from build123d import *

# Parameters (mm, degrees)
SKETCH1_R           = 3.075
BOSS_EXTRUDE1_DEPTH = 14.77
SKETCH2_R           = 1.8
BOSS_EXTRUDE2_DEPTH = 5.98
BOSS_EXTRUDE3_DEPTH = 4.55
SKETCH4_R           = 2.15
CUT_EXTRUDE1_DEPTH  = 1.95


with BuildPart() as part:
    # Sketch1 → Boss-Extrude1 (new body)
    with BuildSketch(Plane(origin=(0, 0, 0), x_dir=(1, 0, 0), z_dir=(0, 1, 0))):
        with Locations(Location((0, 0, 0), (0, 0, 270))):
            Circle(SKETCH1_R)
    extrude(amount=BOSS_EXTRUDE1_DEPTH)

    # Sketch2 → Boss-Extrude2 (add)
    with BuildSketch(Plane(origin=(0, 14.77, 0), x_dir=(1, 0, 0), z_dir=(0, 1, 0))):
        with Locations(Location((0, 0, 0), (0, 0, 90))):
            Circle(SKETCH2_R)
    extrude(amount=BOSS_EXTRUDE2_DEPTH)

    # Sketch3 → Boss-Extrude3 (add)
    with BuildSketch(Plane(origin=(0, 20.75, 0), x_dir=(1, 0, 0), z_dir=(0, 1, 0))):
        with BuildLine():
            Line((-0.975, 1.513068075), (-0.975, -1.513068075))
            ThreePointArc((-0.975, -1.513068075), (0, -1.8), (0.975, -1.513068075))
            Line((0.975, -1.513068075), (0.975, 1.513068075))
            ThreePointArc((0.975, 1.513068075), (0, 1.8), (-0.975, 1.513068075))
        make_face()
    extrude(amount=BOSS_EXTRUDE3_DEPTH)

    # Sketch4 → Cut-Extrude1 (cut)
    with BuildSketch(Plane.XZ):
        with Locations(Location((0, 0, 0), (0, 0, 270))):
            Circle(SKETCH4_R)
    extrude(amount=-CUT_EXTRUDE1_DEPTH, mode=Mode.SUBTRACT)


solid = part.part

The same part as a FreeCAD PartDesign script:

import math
import FreeCAD as App
import Part
import Sketcher

doc = App.newDocument("Part")
body = doc.addObject("PartDesign::Body", "Body")

sketch1 = doc.addObject("Sketcher::SketchObject", "Sketch")
body.addObject(sketch1)
sketch1.AttachmentSupport = (doc.XZ_Plane, [""])
sketch1.MapMode = "FlatFace"
sketch1.addGeometry(Part.Circle(App.Vector(0, 0, 0), App.Vector(0, 0, 1), 3.1), False)
sketch1.addConstraint([
    Sketcher.Constraint("Coincident", 0, 3, -1, 1),
    Sketcher.Constraint("Diameter", 0, 6.15),
])
pad1 = doc.addObject("PartDesign::Pad", "Pad")
body.addObject(pad1)
pad1.Profile = sketch1
pad1.Length = 14.77
pad1.Reversed = True

sketch2 = doc.addObject("Sketcher::SketchObject", "Sketch001")
body.addObject(sketch2)
sketch2.AttachmentSupport = (doc.XZ_Plane, [""])
sketch2.MapMode = "FlatFace"
sketch2.AttachmentOffset = App.Placement(App.Vector(0, 0, -14.77), App.Rotation())
sketch2.addGeometry(Part.Circle(App.Vector(0, 0, 0), App.Vector(0, 0, 1), 1.8), False)
sketch2.addConstraint([
    Sketcher.Constraint("Coincident", 0, 3, -1, 1),
    Sketcher.Constraint("Diameter", 0, 3.6),
])
pad2 = doc.addObject("PartDesign::Pad", "Pad001")
body.addObject(pad2)
pad2.Profile = sketch2
pad2.Length = 5.98
pad2.Reversed = True

sketch3 = doc.addObject("Sketcher::SketchObject", "Sketch002")
body.addObject(sketch3)
sketch3.AttachmentSupport = (doc.XZ_Plane, [""])
sketch3.MapMode = "FlatFace"
sketch3.AttachmentOffset = App.Placement(App.Vector(0, 0, -20.75), App.Rotation())
sketch3.addGeometry([
    Part.LineSegment(App.Vector(-1, -1.5, 0), App.Vector(-1, 1.5, 0)),
    Part.ArcOfCircle(Part.Circle(App.Vector(0, 0, 0), App.Vector(0, 0, 1), 1.8), math.radians(57), math.radians(123)),
    Part.LineSegment(App.Vector(1, 1.5, 0), App.Vector(1, -1.5, 0)),
    Part.ArcOfCircle(Part.Circle(App.Vector(0, 0, 0), App.Vector(0, 0, 1), 1.8), math.radians(-123), math.radians(-57)),
], False)
sketch3.addConstraint([
    Sketcher.Constraint("Coincident", 0, 2, 1, 2),
    Sketcher.Constraint("Coincident", 1, 1, 2, 1),
    Sketcher.Constraint("Coincident", 2, 2, 3, 2),
    Sketcher.Constraint("Coincident", 3, 1, 0, 1),
    Sketcher.Constraint("Vertical", 0),
    Sketcher.Constraint("Vertical", 2),
    Sketcher.Constraint("Coincident", 1, 3, -1, 1),
    Sketcher.Constraint("Coincident", 3, 3, -1, 1),
    Sketcher.Constraint("Equal", 1, 3),
    Sketcher.Constraint("Horizontal", 0, 2, 1, 1),
    Sketcher.Constraint("Radius", 1, 1.8),
    Sketcher.Constraint("DistanceX", 0, 2, 1, 1, 1.95),
])
pad3 = doc.addObject("PartDesign::Pad", "Pad002")
body.addObject(pad3)
pad3.Profile = sketch3
pad3.Length = 4.55
pad3.Reversed = True

sketch4 = doc.addObject("Sketcher::SketchObject", "Sketch003")
body.addObject(sketch4)
sketch4.AttachmentSupport = (doc.XZ_Plane, [""])
sketch4.MapMode = "FlatFace"
sketch4.addGeometry(Part.Circle(App.Vector(0, 0, 0), App.Vector(0, 0, 1), 2.1), False)
sketch4.addConstraint([
    Sketcher.Constraint("Coincident", 0, 3, -1, 1),
    Sketcher.Constraint("Diameter", 0, 4.3),
])
pocket1 = doc.addObject("PartDesign::Pocket", "Pocket")
body.addObject(pocket1)
pocket1.Profile = sketch4
pocket1.Length = 1.95

doc.recompute()
